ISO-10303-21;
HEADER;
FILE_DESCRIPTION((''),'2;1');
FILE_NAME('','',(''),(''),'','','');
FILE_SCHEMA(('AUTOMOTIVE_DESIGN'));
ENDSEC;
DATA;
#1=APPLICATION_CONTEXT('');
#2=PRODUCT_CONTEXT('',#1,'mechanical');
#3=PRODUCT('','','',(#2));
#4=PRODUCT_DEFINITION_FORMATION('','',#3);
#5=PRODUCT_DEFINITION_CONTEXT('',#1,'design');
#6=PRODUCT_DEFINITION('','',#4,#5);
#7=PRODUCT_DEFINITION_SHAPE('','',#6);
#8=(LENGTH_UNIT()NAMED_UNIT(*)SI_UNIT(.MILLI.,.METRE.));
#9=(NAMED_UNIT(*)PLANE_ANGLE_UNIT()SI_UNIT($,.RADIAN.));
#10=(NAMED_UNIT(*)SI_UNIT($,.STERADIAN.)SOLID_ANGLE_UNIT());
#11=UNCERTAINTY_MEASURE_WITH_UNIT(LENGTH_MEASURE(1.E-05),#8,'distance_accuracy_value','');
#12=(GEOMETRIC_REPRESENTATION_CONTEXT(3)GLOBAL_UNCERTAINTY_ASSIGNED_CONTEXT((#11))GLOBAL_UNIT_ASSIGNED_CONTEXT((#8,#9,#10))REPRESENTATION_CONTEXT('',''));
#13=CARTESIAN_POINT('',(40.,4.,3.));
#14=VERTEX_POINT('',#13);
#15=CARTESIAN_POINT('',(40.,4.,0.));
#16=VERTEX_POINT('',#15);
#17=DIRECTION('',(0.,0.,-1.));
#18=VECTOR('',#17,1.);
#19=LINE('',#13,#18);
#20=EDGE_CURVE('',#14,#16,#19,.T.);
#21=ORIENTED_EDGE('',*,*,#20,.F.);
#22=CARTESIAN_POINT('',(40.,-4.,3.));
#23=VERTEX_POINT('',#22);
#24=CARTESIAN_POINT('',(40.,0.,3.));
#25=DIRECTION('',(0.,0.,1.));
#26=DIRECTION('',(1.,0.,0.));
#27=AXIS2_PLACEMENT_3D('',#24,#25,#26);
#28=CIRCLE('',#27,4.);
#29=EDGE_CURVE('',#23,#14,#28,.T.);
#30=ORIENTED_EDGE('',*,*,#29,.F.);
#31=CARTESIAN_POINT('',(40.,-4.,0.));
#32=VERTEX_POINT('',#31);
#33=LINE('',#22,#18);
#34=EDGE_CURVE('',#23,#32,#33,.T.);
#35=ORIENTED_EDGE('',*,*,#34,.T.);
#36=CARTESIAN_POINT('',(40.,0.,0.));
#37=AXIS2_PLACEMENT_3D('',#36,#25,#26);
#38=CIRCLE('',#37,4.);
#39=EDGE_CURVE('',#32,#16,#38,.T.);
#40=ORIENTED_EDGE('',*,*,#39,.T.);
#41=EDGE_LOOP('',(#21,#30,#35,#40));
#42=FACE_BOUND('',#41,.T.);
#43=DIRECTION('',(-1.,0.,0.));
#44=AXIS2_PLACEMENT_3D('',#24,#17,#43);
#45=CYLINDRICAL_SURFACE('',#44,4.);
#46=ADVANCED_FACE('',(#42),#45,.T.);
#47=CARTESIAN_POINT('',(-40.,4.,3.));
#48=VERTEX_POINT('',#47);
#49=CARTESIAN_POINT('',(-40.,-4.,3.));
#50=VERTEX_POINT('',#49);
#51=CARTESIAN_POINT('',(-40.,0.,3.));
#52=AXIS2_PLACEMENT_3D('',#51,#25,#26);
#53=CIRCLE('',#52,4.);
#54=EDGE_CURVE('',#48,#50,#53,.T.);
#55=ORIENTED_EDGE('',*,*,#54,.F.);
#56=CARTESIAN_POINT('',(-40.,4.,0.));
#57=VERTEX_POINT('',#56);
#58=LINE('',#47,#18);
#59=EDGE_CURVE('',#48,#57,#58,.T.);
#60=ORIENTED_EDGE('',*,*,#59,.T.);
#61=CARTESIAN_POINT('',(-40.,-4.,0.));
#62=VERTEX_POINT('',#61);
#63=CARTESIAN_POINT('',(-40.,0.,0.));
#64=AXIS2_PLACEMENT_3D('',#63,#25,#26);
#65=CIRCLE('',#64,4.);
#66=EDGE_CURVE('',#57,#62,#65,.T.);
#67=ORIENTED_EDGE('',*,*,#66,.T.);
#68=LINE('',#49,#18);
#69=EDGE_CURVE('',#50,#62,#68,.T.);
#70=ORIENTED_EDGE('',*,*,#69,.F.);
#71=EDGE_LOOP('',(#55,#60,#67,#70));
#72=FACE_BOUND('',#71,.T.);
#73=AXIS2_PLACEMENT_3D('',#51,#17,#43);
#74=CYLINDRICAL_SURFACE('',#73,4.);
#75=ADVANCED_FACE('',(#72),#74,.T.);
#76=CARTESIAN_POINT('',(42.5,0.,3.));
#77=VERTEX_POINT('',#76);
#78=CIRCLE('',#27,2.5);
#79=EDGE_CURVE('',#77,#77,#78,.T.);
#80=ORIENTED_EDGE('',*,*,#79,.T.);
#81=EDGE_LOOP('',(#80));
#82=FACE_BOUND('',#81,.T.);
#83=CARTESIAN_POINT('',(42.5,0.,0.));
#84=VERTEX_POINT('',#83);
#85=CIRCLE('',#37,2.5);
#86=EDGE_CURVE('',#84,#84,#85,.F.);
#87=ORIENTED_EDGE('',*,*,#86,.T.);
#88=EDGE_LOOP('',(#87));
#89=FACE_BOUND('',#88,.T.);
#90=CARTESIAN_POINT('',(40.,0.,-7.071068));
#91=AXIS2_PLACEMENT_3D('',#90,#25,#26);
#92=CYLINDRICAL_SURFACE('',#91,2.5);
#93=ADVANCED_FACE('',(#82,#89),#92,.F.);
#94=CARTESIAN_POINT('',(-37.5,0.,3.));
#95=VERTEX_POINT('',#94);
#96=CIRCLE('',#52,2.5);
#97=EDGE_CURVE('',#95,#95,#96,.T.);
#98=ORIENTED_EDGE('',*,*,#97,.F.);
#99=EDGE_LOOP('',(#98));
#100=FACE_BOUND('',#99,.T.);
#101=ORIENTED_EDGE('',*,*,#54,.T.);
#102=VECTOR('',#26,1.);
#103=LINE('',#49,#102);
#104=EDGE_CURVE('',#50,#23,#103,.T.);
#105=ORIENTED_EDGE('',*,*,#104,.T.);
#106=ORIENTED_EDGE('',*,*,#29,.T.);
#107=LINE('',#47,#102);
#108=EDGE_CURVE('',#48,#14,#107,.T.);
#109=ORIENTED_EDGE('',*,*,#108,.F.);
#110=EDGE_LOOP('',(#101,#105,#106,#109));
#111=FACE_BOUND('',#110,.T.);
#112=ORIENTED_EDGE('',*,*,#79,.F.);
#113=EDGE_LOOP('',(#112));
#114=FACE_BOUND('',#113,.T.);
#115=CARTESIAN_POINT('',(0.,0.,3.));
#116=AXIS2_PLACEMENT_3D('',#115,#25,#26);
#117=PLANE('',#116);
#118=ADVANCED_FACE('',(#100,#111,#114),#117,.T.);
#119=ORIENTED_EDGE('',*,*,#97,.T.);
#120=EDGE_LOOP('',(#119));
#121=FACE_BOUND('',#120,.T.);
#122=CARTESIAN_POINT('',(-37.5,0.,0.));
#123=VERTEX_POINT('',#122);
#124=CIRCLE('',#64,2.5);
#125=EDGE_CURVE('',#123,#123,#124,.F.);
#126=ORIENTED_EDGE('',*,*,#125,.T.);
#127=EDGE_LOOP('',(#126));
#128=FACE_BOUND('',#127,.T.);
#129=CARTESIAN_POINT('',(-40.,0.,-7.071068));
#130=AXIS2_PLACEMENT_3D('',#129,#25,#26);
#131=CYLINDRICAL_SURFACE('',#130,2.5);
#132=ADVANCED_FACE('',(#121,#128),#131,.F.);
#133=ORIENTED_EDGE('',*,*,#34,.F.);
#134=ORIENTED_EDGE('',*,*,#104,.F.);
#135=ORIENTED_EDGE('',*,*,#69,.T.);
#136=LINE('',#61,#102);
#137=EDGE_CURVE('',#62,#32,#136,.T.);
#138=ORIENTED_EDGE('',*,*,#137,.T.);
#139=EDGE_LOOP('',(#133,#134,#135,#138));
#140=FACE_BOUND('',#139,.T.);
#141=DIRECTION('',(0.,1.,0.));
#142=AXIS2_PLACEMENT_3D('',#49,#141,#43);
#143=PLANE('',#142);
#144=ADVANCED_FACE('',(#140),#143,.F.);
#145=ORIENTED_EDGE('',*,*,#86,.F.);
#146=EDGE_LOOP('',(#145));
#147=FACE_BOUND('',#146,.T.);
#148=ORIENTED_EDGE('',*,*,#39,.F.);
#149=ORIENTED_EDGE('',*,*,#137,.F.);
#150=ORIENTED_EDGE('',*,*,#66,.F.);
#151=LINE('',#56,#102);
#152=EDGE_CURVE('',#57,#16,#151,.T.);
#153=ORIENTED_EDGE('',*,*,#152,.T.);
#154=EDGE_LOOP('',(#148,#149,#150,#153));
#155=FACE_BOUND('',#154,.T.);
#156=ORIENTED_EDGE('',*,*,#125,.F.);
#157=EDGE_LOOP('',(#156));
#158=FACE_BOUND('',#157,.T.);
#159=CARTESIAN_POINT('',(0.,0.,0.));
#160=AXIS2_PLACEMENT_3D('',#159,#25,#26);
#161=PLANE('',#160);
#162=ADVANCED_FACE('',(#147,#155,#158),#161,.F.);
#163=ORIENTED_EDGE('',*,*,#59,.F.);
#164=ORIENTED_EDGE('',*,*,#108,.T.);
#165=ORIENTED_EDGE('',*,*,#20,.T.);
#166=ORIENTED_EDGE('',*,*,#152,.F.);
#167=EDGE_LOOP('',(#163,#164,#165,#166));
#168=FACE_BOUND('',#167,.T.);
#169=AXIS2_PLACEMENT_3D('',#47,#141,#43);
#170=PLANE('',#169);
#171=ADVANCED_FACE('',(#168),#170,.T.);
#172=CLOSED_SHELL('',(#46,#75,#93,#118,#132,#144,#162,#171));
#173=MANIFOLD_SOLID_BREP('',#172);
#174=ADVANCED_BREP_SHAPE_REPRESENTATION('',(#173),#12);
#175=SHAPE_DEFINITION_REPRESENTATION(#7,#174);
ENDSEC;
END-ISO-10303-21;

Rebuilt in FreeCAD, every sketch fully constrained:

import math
import FreeCAD as App
import Part
import Sketcher

doc = App.newDocument("Part")
body = doc.addObject("PartDesign::Body", "Body")

# Sketch on XY plane
sketch1 = body.newObject("Sketcher::SketchObject", "Sketch")
sketch1.AttachmentSupport = (doc.getObject("XY_Plane"), [""])
sketch1.MapMode = "FlatFace"
sketch1.addGeometry(Part.LineSegment(App.Vector(-40, -4, 0), App.Vector(40, -4, 0)), False)
sketch1.addGeometry(Part.ArcOfCircle(Part.Circle(App.Vector(40, 0, 0), App.Vector(0, 0, 1), 4), math.radians(-90), math.radians(90)), False)
sketch1.addGeometry(Part.LineSegment(App.Vector(40, 4, 0), App.Vector(-40, 4, 0)), False)
sketch1.addGeometry(Part.ArcOfCircle(Part.Circle(App.Vector(-40, 0, 0), App.Vector(0, 0, 1), 4), math.radians(90), math.radians(270)), False)
sketch1.addConstraint(Sketcher.Constraint("Tangent", 0, 2, 1, 1))
sketch1.addConstraint(Sketcher.Constraint("Tangent", 1, 2, 2, 1))
sketch1.addConstraint(Sketcher.Constraint("Tangent", 2, 2, 3, 1))
sketch1.addConstraint(Sketcher.Constraint("Tangent", 3, 2, 0, 1))
sketch1.addConstraint(Sketcher.Constraint("Horizontal", 0))
sketch1.addConstraint(Sketcher.Constraint("Horizontal", 2))
sketch1.addConstraint(Sketcher.Constraint("Symmetric", 1, 3, 3, 3, -1, 1))
sketch1.addConstraint(Sketcher.Constraint("Radius", 1, 4.0))
sketch1.addConstraint(Sketcher.Constraint("DistanceX", 0, 1, 0, 2, 80.0))
pad1 = body.newObject("PartDesign::Pad", "Pad")
pad1.Profile = sketch1
pad1.Length = 3

# Sketch on XY plane
sketch2 = body.newObject("Sketcher::SketchObject", "Sketch001")
sketch2.AttachmentSupport = (doc.getObject("XY_Plane"), [""])
sketch2.MapMode = "FlatFace"
sketch2.AttachmentOffset = App.Placement(App.Vector(0, 0, 3), App.Rotation())
sketch2.addGeometry(Part.Circle(App.Vector(-40, 0, 0), App.Vector(0, 0, 1), 2.5), False)
sketch2.addGeometry(Part.Circle(App.Vector(40, 0, 0), App.Vector(0, 0, 1), 2.5), False)
sketch2.addConstraint(Sketcher.Constraint("Equal", 0, 1))
sketch2.addConstraint(Sketcher.Constraint("Symmetric", 0, 3, 1, 3, -1, 1))
sketch2.addConstraint(Sketcher.Constraint("PointOnObject", 0, 3, -1))
sketch2.addConstraint(Sketcher.Constraint("Diameter", 0, 5.0))
sketch2.addConstraint(Sketcher.Constraint("DistanceX", 0, 3, -1, 1, 40.0))
pocket1 = body.newObject("PartDesign::Pocket", "Pocket")
pocket1.Profile = sketch2
pocket1.Length = 3

doc.recompute()
